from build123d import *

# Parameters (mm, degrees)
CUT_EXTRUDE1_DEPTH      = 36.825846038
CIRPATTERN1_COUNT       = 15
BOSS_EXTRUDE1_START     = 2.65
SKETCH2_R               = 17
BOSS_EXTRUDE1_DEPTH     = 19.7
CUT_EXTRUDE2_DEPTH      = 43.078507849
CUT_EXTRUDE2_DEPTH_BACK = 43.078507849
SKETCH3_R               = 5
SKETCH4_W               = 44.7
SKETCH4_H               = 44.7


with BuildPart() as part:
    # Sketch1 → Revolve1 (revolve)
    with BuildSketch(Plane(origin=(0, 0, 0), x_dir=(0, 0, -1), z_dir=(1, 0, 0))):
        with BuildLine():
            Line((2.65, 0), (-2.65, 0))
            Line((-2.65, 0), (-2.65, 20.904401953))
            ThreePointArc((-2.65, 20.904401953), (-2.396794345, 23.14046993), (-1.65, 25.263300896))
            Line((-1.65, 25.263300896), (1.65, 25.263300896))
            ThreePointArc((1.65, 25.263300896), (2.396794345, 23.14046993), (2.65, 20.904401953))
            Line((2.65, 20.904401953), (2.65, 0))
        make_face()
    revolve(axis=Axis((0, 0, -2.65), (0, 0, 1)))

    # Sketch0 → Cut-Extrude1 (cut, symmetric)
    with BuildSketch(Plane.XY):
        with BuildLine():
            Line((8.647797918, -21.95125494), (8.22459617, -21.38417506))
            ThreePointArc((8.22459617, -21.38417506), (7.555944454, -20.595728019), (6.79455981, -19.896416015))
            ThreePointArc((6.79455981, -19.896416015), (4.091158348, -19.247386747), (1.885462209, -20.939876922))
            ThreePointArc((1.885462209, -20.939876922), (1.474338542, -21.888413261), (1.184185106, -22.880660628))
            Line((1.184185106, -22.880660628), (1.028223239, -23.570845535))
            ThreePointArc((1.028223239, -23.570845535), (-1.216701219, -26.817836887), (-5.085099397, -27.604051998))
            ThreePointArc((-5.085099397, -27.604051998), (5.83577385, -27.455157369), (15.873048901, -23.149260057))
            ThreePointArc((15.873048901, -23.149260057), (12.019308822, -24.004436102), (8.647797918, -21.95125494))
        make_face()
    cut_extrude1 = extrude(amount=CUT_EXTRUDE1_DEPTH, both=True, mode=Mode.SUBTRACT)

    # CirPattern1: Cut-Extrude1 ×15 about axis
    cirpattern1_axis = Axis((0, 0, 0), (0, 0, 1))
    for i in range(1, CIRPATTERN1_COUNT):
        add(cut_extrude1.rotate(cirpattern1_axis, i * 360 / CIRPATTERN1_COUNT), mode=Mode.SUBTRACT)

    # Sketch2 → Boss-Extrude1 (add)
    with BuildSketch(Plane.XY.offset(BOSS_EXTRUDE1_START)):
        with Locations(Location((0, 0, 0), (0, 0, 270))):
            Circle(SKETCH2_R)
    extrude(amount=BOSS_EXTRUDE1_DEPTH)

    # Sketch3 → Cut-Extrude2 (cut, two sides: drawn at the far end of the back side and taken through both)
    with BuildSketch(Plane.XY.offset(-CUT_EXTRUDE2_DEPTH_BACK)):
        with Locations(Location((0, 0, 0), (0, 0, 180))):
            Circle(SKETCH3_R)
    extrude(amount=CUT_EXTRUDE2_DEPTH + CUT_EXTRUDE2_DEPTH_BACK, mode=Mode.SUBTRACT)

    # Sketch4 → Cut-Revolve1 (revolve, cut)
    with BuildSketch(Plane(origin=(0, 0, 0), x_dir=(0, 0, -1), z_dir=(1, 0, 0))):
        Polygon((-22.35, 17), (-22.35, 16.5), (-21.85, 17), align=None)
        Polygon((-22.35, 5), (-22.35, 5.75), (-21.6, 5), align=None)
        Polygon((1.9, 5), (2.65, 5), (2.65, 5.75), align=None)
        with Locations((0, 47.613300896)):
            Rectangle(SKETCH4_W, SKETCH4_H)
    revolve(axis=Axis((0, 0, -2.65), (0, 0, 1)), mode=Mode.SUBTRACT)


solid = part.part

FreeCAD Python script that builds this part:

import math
import FreeCAD as App
import Part
import Sketcher

V = App.Vector
Q = App.Units.Quantity


def add_polygon(sketch, points):
    """Adds a closed chain of lines whose ends are joined by coincident constraints."""
    first, n = sketch.GeometryCount, len(points)
    for a, b in zip(points, points[1:] + points[:1]):
        sketch.addGeometry(Part.LineSegment(App.Vector(*a, 0), App.Vector(*b, 0)), False)
    for i in range(n):
        sketch.addConstraint(Sketcher.Constraint("Coincident", first + i, 2, first + (i + 1) % n, 1))

doc = App.newDocument("Part")
body = doc.addObject("PartDesign::Body", "Body")

# Sketch on YZ plane
sketch1 = doc.addObject("Sketcher::SketchObject", "Sketch")
body.addObject(sketch1)
sketch1.AttachmentSupport = (doc.YZ_Plane, [""])
sketch1.MapMode = "FlatFace"
sketch1.addGeometry([
    Part.LineSegment(V(0, 2.6, 0), V(0, -2.6, 0)),  # 0
    Part.LineSegment(V(0, -2.6, 0), V(20.9, -2.6, 0)),  # 1
    Part.ArcOfCircle(Part.Circle(V(20.9, 7.3, 0), V(0, 0, 1), 10), math.radians(-90), math.radians(-64)),  # 2
    Part.LineSegment(V(25.3, -1.6, 0), V(25.3, 1.6, 0)),  # 3
    Part.ArcOfCircle(Part.Circle(V(20.9, -7.3, 0), V(0, 0, 1), 10), math.radians(64), math.radians(90)),  # 4
    Part.LineSegment(V(20.9, 2.6, 0), V(0, 2.6, 0)),  # 5
], False)
sketch1.addConstraint([
    Sketcher.Constraint("Coincident", 0, 2, 1, 1),
    Sketcher.Constraint("Tangent", 1, 2, 2, 1),
    Sketcher.Constraint("Coincident", 2, 2, 3, 1),
    Sketcher.Constraint("Coincident", 3, 2, 4, 1),
    Sketcher.Constraint("Tangent", 4, 2, 5, 1),
    Sketcher.Constraint("Coincident", 5, 2, 0, 1),
    Sketcher.Constraint("Vertical", 0),
    Sketcher.Constraint("Horizontal", 1),
    Sketcher.Constraint("Vertical", 3),
    Sketcher.Constraint("Horizontal", 5),
    Sketcher.Constraint("Equal", 2, 4),
    Sketcher.Constraint("Symmetric", 0, 2, 5, 2, -1, 1),
    Sketcher.Constraint("Vertical", 2, 3, 4, 3),
    Sketcher.Constraint("Radius", 2, Q("10 mm")),
    Sketcher.Constraint("DistanceY", 0, 2, 0, 1, Q("5.3 mm")),
    Sketcher.Constraint("DistanceY", 3, 1, 3, 2, Q("3.3 mm")),
    Sketcher.Constraint("DistanceX", 1, 1, 1, 2, Q("20.904402 mm")),
])
revolution = doc.addObject("PartDesign::Revolution", "Revolution")
body.addObject(revolution)
revolution.Profile = sketch1
revolution.ReferenceAxis = (sketch1, ["V_Axis"])
revolution.Angle = 360

# Sketch on XY plane
sketch2 = doc.addObject("Sketcher::SketchObject", "Sketch001")
body.addObject(sketch2)
sketch2.AttachmentSupport = (doc.XY_Plane, [""])
sketch2.MapMode = "FlatFace"
sketch2.addGeometry([
    Part.LineSegment(V(8.6, -22, 0), V(8.2, -21.4, 0)),  # 0
    Part.ArcOfCircle(Part.Circle(V(1.6, -26.4, 0), V(0, 0, 1), 8.3), math.radians(36.73), math.radians(51)),  # 1
    Part.ArcOfCircle(Part.Circle(V(4.8, -22.4, 0), V(0, 0, 1), 3.2), math.radians(51), math.radians(153)),  # 2
    Part.ArcOfCircle(Part.Circle(V(9.3, -24.7, 0), V(0, 0, 1), 8.3), math.radians(153), math.radians(167.27)),  # 3
    Part.LineSegment(V(1.2, -22.9, 0), V(1, -23.6, 0)),  # 4
    Part.ArcOfCircle(Part.Circle(V(-4.1, -22.4, 0), V(0, 0, 1), 5.3), math.radians(-100), math.radians(-13)),  # 5
    Part.ArcOfCircle(Part.Circle(V(0, 0, 0), V(0, 0, 1), 28.1), math.radians(-100), math.radians(-56)),  # 6
    Part.ArcOfCircle(Part.Circle(V(12.9, -18.8, 0), V(0, 0, 1), 5.3), math.radians(-143), math.radians(-56)),  # 7
], False)
sketch2.addConstraint([
    Sketcher.Constraint("Tangent", 0, 2, 1, 1),
    Sketcher.Constraint("Tangent", 1, 2, 2, 1),
    Sketcher.Constraint("Tangent", 2, 2, 3, 1),
    Sketcher.Constraint("Tangent", 3, 2, 4, 1),
    Sketcher.Constraint("Tangent", 4, 2, 5, 2),
    Sketcher.Constraint("Tangent", 5, 1, 6, 1),
    Sketcher.Constraint("Tangent", 6, 2, 7, 2),
    Sketcher.Constraint("Tangent", 7, 1, 0, 1),
    Sketcher.Constraint("Coincident", 6, 3, -1, 1),
    Sketcher.Constraint("Equal", 1, 3),
    Sketcher.Constraint("Equal", 5, 7),
    Sketcher.Constraint("Horizontal", 2, 3, 5, 3),
    Sketcher.Constraint("Equal", 0, 4),
    Sketcher.Constraint("Radius", 6, Q("28.068522 mm")),
    Sketcher.Constraint("DistanceX", 5, 3, 2, 3, Q("8.89 mm")),
    Sketcher.Constraint("Radius", 1, Q("8.308975 mm")),
    Sketcher.Constraint("Radius", 2, Q("3.228975 mm")),
    Sketcher.Constraint("Radius", 5, Q("5.285718 mm")),
    Sketcher.Constraint("DistanceX", -1, 1, 2, 3, Q("4.7625 mm")),
    Sketcher.Constraint("DistanceY", 1, 3, 2, 3, Q("3.947901 mm")),
    Sketcher.Constraint("DistanceY", 0, 2, 2, 2, Q("0.444298 mm")),
])
pocket1 = doc.addObject("PartDesign::Pocket", "Pocket")
body.addObject(pocket1)
pocket1.Profile = sketch2
pocket1.Length = 73.651692
pocket1.Midplane = True
doc.recompute()

polarpattern = doc.addObject("PartDesign::PolarPattern", "PolarPattern")
body.addObject(polarpattern)
polarpattern.Originals = [pocket1]
polarpattern.Axis = (doc.Z_Axis, [""])
polarpattern.Angle = 360
polarpattern.Occurrences = 15
body.Tip = polarpattern

# Sketch on XY plane
sketch3 = doc.addObject("Sketcher::SketchObject", "Sketch002")
body.addObject(sketch3)
sketch3.AttachmentSupport = (doc.XY_Plane, [""])
sketch3.MapMode = "FlatFace"
sketch3.AttachmentOffset = App.Placement(V(0, 0, 2.65), App.Rotation())
sketch3.addGeometry(Part.Circle(V(0, 0, 0), V(0, 0, 1), 17), False)
sketch3.addConstraint([
    Sketcher.Constraint("Coincident", 0, 3, -1, 1),
    Sketcher.Constraint("Diameter", 0, Q("34 mm")),
])
pad1 = doc.addObject("PartDesign::Pad", "Pad")
body.addObject(pad1)
pad1.Profile = sketch3
pad1.Length = 19.7

# Sketch on XY plane
sketch4 = doc.addObject("Sketcher::SketchObject", "Sketch003")
body.addObject(sketch4)
sketch4.AttachmentSupport = (doc.XY_Plane, [""])
sketch4.MapMode = "FlatFace"
sketch4.addGeometry(Part.Circle(V(0, 0, 0), V(0, 0, 1), 5), False)
sketch4.addConstraint([
    Sketcher.Constraint("Coincident", 0, 3, -1, 1),
    Sketcher.Constraint("Diameter", 0, Q("10 mm")),
])
pocket2 = doc.addObject("PartDesign::Pocket", "Pocket001")
body.addObject(pocket2)
pocket2.Profile = sketch4
pocket2.Type = "ThroughAll"
pocket2.Midplane = True

# Sketch on YZ plane
sketch5 = doc.addObject("Sketcher::SketchObject", "Sketch004")
body.addObject(sketch5)
sketch5.AttachmentSupport = (doc.YZ_Plane, [""])
sketch5.MapMode = "FlatFace"
add_polygon(sketch5, [(17, 22.4), (16.5, 22.4), (17, 21.9)])  # lines 0-2
add_polygon(sketch5, [(5.8, 22.4), (5, 22.4), (5, 21.6)])  # lines 3-5
add_polygon(sketch5, [(5, -1.9), (5, -2.6), (5.8, -2.6)])  # lines 6-8
add_polygon(sketch5, [(70, 22.4), (25.3, 22.4), (25.3, -22.4), (70, -22.4)])  # lines 9-12
sketch5.addConstraint([
    Sketcher.Constraint("Horizontal", 0),
    Sketcher.Constraint("Vertical", 2),
    Sketcher.Constraint("Horizontal", 3),
    Sketcher.Constraint("Vertical", 4),
    Sketcher.Constraint("Vertical", 6),
    Sketcher.Constraint("Horizontal", 7),
    Sketcher.Constraint("Horizontal", 9),
    Sketcher.Constraint("Vertical", 10),
    Sketcher.Constraint("Horizontal", 11),
    Sketcher.Constraint("Vertical", 12),
    Sketcher.Constraint("Perpendicular", 1, 5),
    Sketcher.Constraint("Perpendicular", 5, 8),
    Sketcher.Constraint("Horizontal", 2, 2, 3, 2),
    Sketcher.Constraint("Horizontal", 5, 2, 9, 2),
    Sketcher.Constraint("Vertical", 4, 2, 6, 2),
    Sketcher.Constraint("Vertical", 5, 2, 7, 2),
    Sketcher.Constraint("Equal", 0, 2),
    Sketcher.Constraint("Equal", 11, 10),
    Sketcher.Constraint("DistanceX", 0, 2, 0, 1, Q("0.5 mm")),
    Sketcher.Constraint("DistanceX", 9, 2, 9, 1, Q("44.7 mm")),
    Sketcher.Constraint("DistanceX", -1, 1, 1, 2, Q("17 mm")),
    Sketcher.Constraint("DistanceX", -1, 1, 3, 2, Q("5 mm")),
    Sketcher.Constraint("DistanceY", 6, 2, 3, 2, Q("25 mm")),
    Sketcher.Constraint("DistanceX", 3, 2, 3, 1, Q("0.75 mm")),
    Sketcher.Constraint("DistanceY", -1, 1, 4, 2, Q("21.6 mm")),
    Sketcher.Constraint("DistanceX", -1, 1, 9, 2, Q("25.263301 mm")),
])
groove = doc.addObject("PartDesign::Groove", "Groove")
body.addObject(groove)
groove.Profile = sketch5
groove.ReferenceAxis = (sketch5, ["V_Axis"])
groove.Angle = 360

doc.recompute()
